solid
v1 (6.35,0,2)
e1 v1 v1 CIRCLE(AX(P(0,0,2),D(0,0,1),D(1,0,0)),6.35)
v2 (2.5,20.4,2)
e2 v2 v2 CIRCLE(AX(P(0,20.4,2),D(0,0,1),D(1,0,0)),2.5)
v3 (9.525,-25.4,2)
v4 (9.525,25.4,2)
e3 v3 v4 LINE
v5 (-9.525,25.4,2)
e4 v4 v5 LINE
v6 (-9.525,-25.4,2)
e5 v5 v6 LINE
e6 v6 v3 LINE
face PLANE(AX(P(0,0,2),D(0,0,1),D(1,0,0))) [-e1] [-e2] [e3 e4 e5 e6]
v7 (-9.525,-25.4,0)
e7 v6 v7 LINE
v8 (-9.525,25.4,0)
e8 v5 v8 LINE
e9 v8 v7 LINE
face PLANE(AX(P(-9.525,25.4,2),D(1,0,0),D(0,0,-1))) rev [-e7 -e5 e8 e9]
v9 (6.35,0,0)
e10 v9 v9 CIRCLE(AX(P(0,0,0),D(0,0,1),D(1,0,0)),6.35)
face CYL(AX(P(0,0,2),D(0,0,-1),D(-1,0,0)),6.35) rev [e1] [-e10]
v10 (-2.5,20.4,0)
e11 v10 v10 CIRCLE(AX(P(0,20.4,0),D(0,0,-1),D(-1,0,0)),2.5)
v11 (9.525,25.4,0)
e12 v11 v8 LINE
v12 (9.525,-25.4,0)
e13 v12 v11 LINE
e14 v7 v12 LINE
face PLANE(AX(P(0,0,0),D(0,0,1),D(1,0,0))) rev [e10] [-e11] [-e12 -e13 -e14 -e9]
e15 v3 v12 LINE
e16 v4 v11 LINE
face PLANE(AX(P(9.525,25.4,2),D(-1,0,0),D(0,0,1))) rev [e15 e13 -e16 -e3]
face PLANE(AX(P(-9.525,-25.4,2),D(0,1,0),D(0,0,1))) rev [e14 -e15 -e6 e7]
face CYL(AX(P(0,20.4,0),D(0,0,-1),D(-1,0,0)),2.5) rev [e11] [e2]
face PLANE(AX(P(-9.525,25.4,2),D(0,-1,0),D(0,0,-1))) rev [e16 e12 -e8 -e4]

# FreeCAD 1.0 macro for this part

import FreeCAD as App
import Part
import Sketcher
from FreeCAD import Vector
Q = App.Units.Quantity

doc = App.newDocument("Part")
body = doc.addObject("PartDesign::Body", "Body")

# Sketch on XY plane
sketch1 = body.newObject("Sketcher::SketchObject", "Sketch")
sketch1.AttachmentSupport = (doc.getObject("XY_Plane"), [""])
sketch1.MapMode = "FlatFace"
sketch1.addGeometry([
    Part.LineSegment(Vector(-9.525, 25.4, 0), Vector(-9.525, -25.4, 0)),  # 0
    Part.LineSegment(Vector(-9.525, -25.4, 0), Vector(9.525, -25.4, 0)),  # 1
    Part.LineSegment(Vector(9.525, -25.4, 0), Vector(9.525, 25.4, 0)),  # 2
    Part.LineSegment(Vector(9.525, 25.4, 0), Vector(-9.525, 25.4, 0)),  # 3
    Part.Circle(Vector(0, 0, 0), Vector(0, 0, 1), 6.35),  # 4
], False)
sketch1.addConstraint([
    Sketcher.Constraint("Coincident", 0, 2, 1, 1),
    Sketcher.Constraint("Coincident", 1, 2, 2, 1),
    Sketcher.Constraint("Coincident", 2, 2, 3, 1),
    Sketcher.Constraint("Coincident", 3, 2, 0, 1),
    Sketcher.Constraint("Vertical", 0),
    Sketcher.Constraint("Horizontal", 1),
    Sketcher.Constraint("Vertical", 2),
    Sketcher.Constraint("Horizontal", 3),
    Sketcher.Constraint("Coincident", 4, 3, -1, 1),
    Sketcher.Constraint("Symmetric", 0, 2, 2, 2, -1, 1),
    Sketcher.Constraint("Diameter", 4, Q("0.5 in")),
    Sketcher.Constraint("DistanceY", 0, 2, 0, 1, Q("2 in")),
    Sketcher.Constraint("DistanceX", 1, 1, 1, 2, Q("0.75 in")),
])
pad1 = body.newObject("PartDesign::Pad", "Pad")
pad1.Profile = sketch1
pad1.Length = 2

# Sketch on XY plane
sketch2 = body.newObject("Sketcher::SketchObject", "Sketch001")
sketch2.AttachmentSupport = (doc.getObject("XY_Plane"), [""])
sketch2.MapMode = "FlatFace"
sketch2.addGeometry(Part.Circle(Vector(0, 20.4, 0), Vector(0, 0, 1), 2.5), False)
sketch2.addConstraint([
    Sketcher.Constraint("PointOnObject", 0, 3, -2),
    Sketcher.Constraint("Diameter", 0, 5.0),
    Sketcher.Constraint("DistanceY", -1, 1, 0, 3, 20.4),
])
doc.recompute()
hole = body.newObject("PartDesign::Hole", "Hole")
hole.Profile = sketch2
hole.ThreadType = "None"
hole.Diameter = 5
hole.DepthType = "Dimension"
hole.Depth = 5
hole.DrillPoint = "Angled"
hole.DrillPointAngle = 118
hole.Reversed = True

doc.recompute()
